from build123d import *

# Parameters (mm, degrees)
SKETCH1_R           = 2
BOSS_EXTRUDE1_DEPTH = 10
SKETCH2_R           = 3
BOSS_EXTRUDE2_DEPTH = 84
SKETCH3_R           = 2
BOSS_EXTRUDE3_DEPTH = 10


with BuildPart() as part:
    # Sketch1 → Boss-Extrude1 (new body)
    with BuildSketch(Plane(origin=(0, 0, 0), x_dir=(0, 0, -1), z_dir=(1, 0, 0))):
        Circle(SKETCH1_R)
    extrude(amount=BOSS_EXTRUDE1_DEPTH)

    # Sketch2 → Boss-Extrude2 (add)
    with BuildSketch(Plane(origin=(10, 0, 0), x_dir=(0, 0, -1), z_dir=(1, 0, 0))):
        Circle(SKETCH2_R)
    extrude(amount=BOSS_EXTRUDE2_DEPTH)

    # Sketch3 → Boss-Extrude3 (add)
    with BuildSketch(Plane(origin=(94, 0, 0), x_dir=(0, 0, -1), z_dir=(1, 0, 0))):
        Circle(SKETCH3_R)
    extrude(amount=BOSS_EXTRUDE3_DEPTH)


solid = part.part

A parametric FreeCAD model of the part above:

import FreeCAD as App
import Part
import Sketcher
from FreeCAD import Vector
Q = App.Units.Quantity

doc = App.newDocument("Part")
body = doc.addObject("PartDesign::Body", "Body")

# Sketch on YZ plane
sketch1 = body.newObject("Sketcher::SketchObject", "Sketch")
sketch1.AttachmentSupport = (doc.getObject("YZ_Plane"), [""])
sketch1.MapMode = "FlatFace"
sketch1.addGeometry(Part.Circle(Vector(0, 0, 0), Vector(0, 0, 1), 2), False)
sketch1.addConstraint(Sketcher.Constraint("Coincident", 0, 3, -1, 1))
sketch1.addConstraint(Sketcher.Constraint("Diameter", 0, Q("4 mm")))
pad1 = body.newObject("PartDesign::Pad", "Pad")
pad1.Profile = sketch1
pad1.Length = 10

# Sketch on YZ plane
sketch2 = body.newObject("Sketcher::SketchObject", "Sketch001")
sketch2.AttachmentSupport = (doc.getObject("YZ_Plane"), [""])
sketch2.MapMode = "FlatFace"
sketch2.AttachmentOffset = App.Placement(Vector(0, 0, 10), App.Rotation())
sketch2.addGeometry(Part.Circle(Vector(0, 0, 0), Vector(0, 0, 1), 3), False)
sketch2.addConstraint(Sketcher.Constraint("Coincident", 0, 3, -1, 1))
sketch2.addConstraint(Sketcher.Constraint("Diameter", 0, Q("6 mm")))
pad2 = body.newObject("PartDesign::Pad", "Pad001")
pad2.Profile = sketch2
pad2.Length = 84

# Sketch on YZ plane
sketch3 = body.newObject("Sketcher::SketchObject", "Sketch002")
sketch3.AttachmentSupport = (doc.getObject("YZ_Plane"), [""])
sketch3.MapMode = "FlatFace"
sketch3.AttachmentOffset = App.Placement(Vector(0, 0, 94), App.Rotation())
sketch3.addGeometry(Part.Circle(Vector(0, 0, 0), Vector(0, 0, 1), 2), False)
sketch3.addConstraint(Sketcher.Constraint("Coincident", 0, 3, -1, 1))
sketch3.addConstraint(Sketcher.Constraint("Diameter", 0, Q("4 mm")))
pad3 = body.newObject("PartDesign::Pad", "Pad002")
pad3.Profile = sketch3
pad3.Length = 10

doc.recompute()
